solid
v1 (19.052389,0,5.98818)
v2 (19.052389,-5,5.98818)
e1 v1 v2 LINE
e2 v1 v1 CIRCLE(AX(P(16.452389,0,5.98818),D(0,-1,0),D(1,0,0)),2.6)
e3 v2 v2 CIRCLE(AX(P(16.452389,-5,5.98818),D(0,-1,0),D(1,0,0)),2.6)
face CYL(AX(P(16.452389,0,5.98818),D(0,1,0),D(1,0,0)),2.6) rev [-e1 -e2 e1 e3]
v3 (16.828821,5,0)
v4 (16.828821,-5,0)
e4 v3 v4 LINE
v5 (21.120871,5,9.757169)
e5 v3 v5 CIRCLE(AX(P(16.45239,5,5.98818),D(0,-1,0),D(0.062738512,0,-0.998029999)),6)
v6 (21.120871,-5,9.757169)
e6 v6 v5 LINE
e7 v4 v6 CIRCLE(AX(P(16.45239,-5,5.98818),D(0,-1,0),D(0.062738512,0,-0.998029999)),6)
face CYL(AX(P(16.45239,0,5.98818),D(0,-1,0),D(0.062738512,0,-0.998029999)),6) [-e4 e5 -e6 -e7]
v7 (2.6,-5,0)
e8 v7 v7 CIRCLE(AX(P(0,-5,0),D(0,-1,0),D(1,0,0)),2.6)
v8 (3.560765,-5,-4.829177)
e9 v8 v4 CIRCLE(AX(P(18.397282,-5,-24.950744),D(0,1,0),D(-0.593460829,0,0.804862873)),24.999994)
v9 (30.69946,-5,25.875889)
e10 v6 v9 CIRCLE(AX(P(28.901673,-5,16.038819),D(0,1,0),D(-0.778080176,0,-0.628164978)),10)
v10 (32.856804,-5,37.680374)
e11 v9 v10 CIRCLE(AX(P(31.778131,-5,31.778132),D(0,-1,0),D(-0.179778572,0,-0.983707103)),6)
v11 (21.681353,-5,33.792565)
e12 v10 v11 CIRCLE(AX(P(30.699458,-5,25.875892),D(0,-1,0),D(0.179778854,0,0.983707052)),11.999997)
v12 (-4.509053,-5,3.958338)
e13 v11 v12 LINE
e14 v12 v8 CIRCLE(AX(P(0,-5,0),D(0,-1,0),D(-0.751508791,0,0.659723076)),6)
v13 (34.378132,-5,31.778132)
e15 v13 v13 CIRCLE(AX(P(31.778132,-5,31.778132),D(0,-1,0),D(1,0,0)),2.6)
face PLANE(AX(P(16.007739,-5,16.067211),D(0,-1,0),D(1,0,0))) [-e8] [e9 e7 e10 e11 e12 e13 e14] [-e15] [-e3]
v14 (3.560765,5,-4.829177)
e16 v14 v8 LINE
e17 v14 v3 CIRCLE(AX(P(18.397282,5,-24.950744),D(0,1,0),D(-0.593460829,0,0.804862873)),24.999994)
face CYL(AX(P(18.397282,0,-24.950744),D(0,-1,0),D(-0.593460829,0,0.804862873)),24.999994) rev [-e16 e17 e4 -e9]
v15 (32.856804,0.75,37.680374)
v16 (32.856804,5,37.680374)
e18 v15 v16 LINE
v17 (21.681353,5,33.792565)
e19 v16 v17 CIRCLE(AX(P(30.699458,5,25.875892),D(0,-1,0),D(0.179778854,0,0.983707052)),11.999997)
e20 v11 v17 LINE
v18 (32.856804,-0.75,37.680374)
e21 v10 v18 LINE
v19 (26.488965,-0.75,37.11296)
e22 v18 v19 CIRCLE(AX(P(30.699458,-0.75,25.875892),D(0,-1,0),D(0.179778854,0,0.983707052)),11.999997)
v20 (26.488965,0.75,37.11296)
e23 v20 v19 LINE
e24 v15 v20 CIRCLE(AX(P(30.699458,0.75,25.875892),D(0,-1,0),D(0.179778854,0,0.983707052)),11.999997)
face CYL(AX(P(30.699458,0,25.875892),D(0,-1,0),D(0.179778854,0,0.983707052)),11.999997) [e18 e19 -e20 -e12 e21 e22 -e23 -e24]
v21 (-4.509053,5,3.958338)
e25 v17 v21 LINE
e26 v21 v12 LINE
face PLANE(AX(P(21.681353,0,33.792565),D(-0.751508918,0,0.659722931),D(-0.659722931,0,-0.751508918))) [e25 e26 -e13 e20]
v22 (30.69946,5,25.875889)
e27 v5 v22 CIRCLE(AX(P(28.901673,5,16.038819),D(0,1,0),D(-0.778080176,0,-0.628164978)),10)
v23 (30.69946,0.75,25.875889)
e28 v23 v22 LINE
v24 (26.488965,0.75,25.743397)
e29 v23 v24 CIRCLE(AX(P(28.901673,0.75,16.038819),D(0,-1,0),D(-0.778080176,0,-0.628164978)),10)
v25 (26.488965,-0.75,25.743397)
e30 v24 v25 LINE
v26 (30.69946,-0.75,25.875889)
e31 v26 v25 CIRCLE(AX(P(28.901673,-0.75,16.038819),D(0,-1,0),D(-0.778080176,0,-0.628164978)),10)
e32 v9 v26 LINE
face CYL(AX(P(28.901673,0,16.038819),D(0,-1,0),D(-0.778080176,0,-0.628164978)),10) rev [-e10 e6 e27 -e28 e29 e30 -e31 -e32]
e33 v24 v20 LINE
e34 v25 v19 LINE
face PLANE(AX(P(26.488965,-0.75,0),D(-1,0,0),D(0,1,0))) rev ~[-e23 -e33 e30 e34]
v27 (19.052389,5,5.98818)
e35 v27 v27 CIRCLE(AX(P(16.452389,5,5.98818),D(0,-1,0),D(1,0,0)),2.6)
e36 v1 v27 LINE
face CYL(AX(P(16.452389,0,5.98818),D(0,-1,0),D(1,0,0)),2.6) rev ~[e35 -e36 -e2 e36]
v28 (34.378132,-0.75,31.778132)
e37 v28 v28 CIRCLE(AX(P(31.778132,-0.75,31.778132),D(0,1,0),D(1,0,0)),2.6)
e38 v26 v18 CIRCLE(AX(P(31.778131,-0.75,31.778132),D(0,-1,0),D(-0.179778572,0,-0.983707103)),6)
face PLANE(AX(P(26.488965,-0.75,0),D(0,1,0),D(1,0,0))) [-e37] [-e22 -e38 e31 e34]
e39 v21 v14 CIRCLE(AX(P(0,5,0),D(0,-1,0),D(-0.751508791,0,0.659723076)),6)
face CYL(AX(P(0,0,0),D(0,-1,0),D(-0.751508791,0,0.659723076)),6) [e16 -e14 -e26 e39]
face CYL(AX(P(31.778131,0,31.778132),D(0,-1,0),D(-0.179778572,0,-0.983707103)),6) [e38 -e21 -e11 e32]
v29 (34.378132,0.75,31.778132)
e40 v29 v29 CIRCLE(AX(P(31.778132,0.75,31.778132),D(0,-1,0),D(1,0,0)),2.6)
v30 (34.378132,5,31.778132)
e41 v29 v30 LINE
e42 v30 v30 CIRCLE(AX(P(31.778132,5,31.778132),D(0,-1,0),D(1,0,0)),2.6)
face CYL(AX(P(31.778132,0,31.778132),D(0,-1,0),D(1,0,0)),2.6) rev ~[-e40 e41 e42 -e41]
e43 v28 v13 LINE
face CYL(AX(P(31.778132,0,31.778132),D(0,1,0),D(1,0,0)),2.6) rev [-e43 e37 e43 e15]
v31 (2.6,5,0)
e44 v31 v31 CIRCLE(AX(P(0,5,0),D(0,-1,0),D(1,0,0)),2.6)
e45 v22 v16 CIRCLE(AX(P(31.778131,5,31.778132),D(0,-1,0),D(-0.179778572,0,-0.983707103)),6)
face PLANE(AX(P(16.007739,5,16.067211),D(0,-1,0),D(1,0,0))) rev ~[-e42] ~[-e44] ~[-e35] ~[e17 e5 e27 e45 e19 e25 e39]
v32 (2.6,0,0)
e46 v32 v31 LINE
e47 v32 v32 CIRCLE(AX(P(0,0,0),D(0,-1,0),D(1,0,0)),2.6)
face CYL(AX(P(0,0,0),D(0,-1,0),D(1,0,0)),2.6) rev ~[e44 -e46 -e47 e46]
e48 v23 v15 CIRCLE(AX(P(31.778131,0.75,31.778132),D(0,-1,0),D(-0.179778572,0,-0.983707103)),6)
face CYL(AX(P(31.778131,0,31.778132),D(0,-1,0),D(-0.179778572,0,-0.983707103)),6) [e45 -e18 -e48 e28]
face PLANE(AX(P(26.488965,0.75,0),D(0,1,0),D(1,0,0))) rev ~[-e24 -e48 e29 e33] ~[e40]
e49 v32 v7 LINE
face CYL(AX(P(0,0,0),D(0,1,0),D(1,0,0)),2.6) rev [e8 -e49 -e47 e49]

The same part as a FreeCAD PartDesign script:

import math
import FreeCAD as App
import Part
import Sketcher

V = App.Vector

doc = App.newDocument("Part")
params = doc.addObject("Spreadsheet::Sheet", "Params")
for row, (alias, value) in enumerate([
    ("sketch1_radius", "6 mm"),
    ("sketch1_radius2", "10 mm"),
    ("sketch1_diameter", "5.2 mm"),
    ("pad1_length", "5 mm"),
    ("pad1_length2", "5 mm"),
    ("sketch2_height", "1.5 mm"),
    ("pocket1_length", "50 mm"),
], start=1):
    params.set(f"A{row}", alias)
    params.set(f"B{row}", "=" + value)
    params.setAlias(f"B{row}", alias)

body = doc.addObject("PartDesign::Body", "Body")

# Sketch on XZ plane
sketch1 = doc.addObject("Sketcher::SketchObject", "Sketch")
body.addObject(sketch1)
sketch1.AttachmentSupport = (doc.XZ_Plane, [""])
sketch1.MapMode = "FlatFace"
sketch1.addGeometry(Part.LineSegment(V(21.681353, 33.792565, 0), V(-4.509053, 3.958338, 0)), False)
sketch1.addGeometry(Part.ArcOfCircle(Part.Circle(V(0, 0, 0), V(0, 0, 1), 6), math.radians(138.721244), math.radians(306.402992)), False)
sketch1.addGeometry(Part.ArcOfCircle(Part.Circle(V(18.397282, -24.950744, 0), V(0, 0, 1), 24.999994), math.radians(93.597011), math.radians(126.402986)), False)
sketch1.addGeometry(Part.ArcOfCircle(Part.Circle(V(16.45239, 5.98818, 0), V(0, 0, 1), 6), math.radians(-86.402986), math.radians(38.914863)), False)
sketch1.addGeometry(Part.ArcOfCircle(Part.Circle(V(28.901673, 16.038819, 0), V(0, 0, 1), 10), math.radians(79.643127), math.radians(218.914867)), False)
sketch1.addGeometry(Part.ArcOfCircle(Part.Circle(V(31.778131, 31.778132, 0), V(0, 0, 1), 6), math.radians(-100.356863), math.radians(79.643126)), False)
sketch1.addGeometry(Part.ArcOfCircle(Part.Circle(V(30.699458, 25.875892, 0), V(0, 0, 1), 11.999997), math.radians(79.643121), math.radians(138.721258)), False)
sketch1.addGeometry(Part.Circle(V(0, 0, 0), V(0, 0, 1), 2.6), False)
sketch1.addGeometry(Part.Circle(V(16.452389, 5.98818, 0), V(0, 0, 1), 2.6), False)
sketch1.addGeometry(Part.Circle(V(31.778132, 31.778132, 0), V(0, 0, 1), 2.6), False)
sketch1.addConstraint(Sketcher.Constraint("Tangent", 0, 2, 1, 1))
sketch1.addConstraint(Sketcher.Constraint("Tangent", 1, 2, 2, 2))
sketch1.addConstraint(Sketcher.Constraint("Tangent", 2, 1, 3, 1))
sketch1.addConstraint(Sketcher.Constraint("Tangent", 3, 2, 4, 2))
sketch1.addConstraint(Sketcher.Constraint("Tangent", 4, 1, 5, 1))
sketch1.addConstraint(Sketcher.Constraint("Tangent", 5, 2, 6, 1))
sketch1.addConstraint(Sketcher.Constraint("Tangent", 6, 2, 0, 1))
sketch1.addConstraint(Sketcher.Constraint("Coincident", 1, 3, -1, 1))
sketch1.addConstraint(Sketcher.Constraint("Coincident", 7, 3, -1, 1))
sketch1.addConstraint(Sketcher.Constraint("Coincident", 8, 3, 3, 3))
sketch1.addConstraint(Sketcher.Constraint("Coincident", 9, 3, 5, 3))
sketch1.addConstraint(Sketcher.Constraint("Coincident", 4, 1, 6, 3))
sketch1.addConstraint(Sketcher.Constraint("Equal", 1, 3))
sketch1.addConstraint(Sketcher.Constraint("Equal", 3, 5))
sketch1.addConstraint(Sketcher.Constraint("Equal", 7, 8))
sketch1.addConstraint(Sketcher.Constraint("Equal", 8, 9))
sketch1.addConstraint(Sketcher.Constraint("PointOnObject", 2, 1, -1))
sketch1.addConstraint(Sketcher.Constraint("Radius", 1, 6.0))
sketch1.addConstraint(Sketcher.Constraint("Radius", 4, 10.0))
sketch1.addConstraint(Sketcher.Constraint("Diameter", 7, 5.2))
sketch1.addConstraint(Sketcher.Constraint("Radius", 2, 24.999994))
sketch1.addConstraint(Sketcher.Constraint("Distance", 0, 39.699099))
sketch1.addConstraint(Sketcher.Constraint("DistanceX", 3, 2, 4, 3, 7.780802))
sketch1.addConstraint(Sketcher.Constraint("DistanceX", -1, 1, 2, 3, 18.397282))
sketch1.setExpression("Constraints[17]", "Params.sketch1_radius")
sketch1.setExpression("Constraints[18]", "Params.sketch1_radius2")
sketch1.setExpression("Constraints[19]", "Params.sketch1_diameter")
pad1 = doc.addObject("PartDesign::Pad", "Pad")
body.addObject(pad1)
pad1.Profile = sketch1
pad1.Type = "TwoLengths"
pad1.setExpression("Length", "Params.pad1_length")
pad1.setExpression("Length2", "Params.pad1_length2")

# Sketch on XY plane
sketch2 = doc.addObject("Sketcher::SketchObject", "Sketch001")
body.addObject(sketch2)
sketch2.AttachmentSupport = (doc.XY_Plane, [""])
sketch2.MapMode = "FlatFace"
sketch2.addGeometry(Part.LineSegment(V(26.488965, 0.75, 0), V(26.488965, -0.75, 0)), False)
sketch2.addGeometry(Part.LineSegment(V(26.488965, -0.75, 0), V(41.106935, -0.75, 0)), False)
sketch2.addGeometry(Part.LineSegment(V(41.106935, -0.75, 0), V(41.106935, 0.75, 0)), False)
sketch2.addGeometry(Part.LineSegment(V(41.106935, 0.75, 0), V(26.488965, 0.75, 0)), False)
sketch2.addConstraint(Sketcher.Constraint("Coincident", 0, 2, 1, 1))
sketch2.addConstraint(Sketcher.Constraint("Coincident", 1, 2, 2, 1))
sketch2.addConstraint(Sketcher.Constraint("Coincident", 2, 2, 3, 1))
sketch2.addConstraint(Sketcher.Constraint("Coincident", 3, 2, 0, 1))
sketch2.addConstraint(Sketcher.Constraint("Vertical", 0))
sketch2.addConstraint(Sketcher.Constraint("Horizontal", 1))
sketch2.addConstraint(Sketcher.Constraint("Vertical", 2))
sketch2.addConstraint(Sketcher.Constraint("Horizontal", 3))
sketch2.addConstraint(Sketcher.Constraint("DistanceY", 0, 2, 0, 1, 1.5))
sketch2.addConstraint(Sketcher.Constraint("DistanceY", 0, 2, -1, 1, 0.75))
sketch2.addConstraint(Sketcher.Constraint("DistanceX", 1, 1, 1, 2, 14.617969))
sketch2.addConstraint(Sketcher.Constraint("DistanceX", -1, 1, 0, 2, 26.488965))
sketch2.setExpression("Constraints[8]", "Params.sketch2_height")
pocket1 = doc.addObject("PartDesign::Pocket", "Pocket")
body.addObject(pocket1)
pocket1.Profile = sketch2
pocket1.setExpression("Length", "Params.pocket1_length")
pocket1.Reversed = True

doc.recompute()
